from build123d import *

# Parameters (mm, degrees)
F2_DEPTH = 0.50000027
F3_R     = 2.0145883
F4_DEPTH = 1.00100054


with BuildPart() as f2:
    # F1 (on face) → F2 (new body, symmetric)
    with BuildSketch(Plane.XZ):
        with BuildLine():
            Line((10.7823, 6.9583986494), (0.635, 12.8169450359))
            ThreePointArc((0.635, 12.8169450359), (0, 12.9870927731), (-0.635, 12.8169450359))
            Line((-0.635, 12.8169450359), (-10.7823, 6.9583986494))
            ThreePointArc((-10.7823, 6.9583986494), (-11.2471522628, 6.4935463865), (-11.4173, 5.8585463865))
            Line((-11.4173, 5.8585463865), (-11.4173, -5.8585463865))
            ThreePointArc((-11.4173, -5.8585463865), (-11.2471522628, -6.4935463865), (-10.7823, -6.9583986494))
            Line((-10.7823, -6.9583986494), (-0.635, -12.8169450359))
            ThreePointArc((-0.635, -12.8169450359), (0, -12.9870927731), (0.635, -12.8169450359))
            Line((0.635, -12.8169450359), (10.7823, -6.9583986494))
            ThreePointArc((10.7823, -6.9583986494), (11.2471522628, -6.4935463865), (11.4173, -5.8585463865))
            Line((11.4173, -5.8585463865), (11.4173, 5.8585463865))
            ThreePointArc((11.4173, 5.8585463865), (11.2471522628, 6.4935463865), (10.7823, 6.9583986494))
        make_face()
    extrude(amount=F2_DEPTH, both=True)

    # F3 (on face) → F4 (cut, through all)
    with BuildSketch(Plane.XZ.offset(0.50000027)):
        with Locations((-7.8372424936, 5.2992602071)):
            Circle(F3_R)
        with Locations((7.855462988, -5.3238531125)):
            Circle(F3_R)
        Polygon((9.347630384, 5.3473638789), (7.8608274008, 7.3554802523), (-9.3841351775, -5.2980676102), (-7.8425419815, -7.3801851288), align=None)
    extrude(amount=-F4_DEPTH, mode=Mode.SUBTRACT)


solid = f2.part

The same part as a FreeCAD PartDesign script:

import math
import FreeCAD as App
import Part
import Sketcher
Q = App.Units.Quantity

doc = App.newDocument("Part")
body = doc.addObject("PartDesign::Body", "Body")

# Sketch on XZ plane
sketch1 = body.newObject("Sketcher::SketchObject", "Sketch")
sketch1.AttachmentSupport = (doc.getObject("XZ_Plane"), [""])
sketch1.MapMode = "FlatFace"
sketch1.addGeometry(Part.LineSegment(App.Vector(10.8, 7, 0), App.Vector(0.6, 12.8, 0)), False)
sketch1.addGeometry(Part.ArcOfCircle(Part.Circle(App.Vector(0, 11.7, 0), App.Vector(0, 0, 1), 1.3), math.radians(60), math.radians(120)), False)
sketch1.addGeometry(Part.LineSegment(App.Vector(-0.6, 12.8, 0), App.Vector(-10.8, 7, 0)), False)
sketch1.addGeometry(Part.ArcOfCircle(Part.Circle(App.Vector(-10.1, 5.9, 0), App.Vector(0, 0, 1), 1.3), math.radians(120), math.radians(180)), False)
sketch1.addGeometry(Part.LineSegment(App.Vector(-11.4, 5.9, 0), App.Vector(-11.4, -5.9, 0)), False)
sketch1.addGeometry(Part.ArcOfCircle(Part.Circle(App.Vector(-10.1, -5.9, 0), App.Vector(0, 0, 1), 1.3), math.radians(180), math.radians(240)), False)
sketch1.addGeometry(Part.LineSegment(App.Vector(-10.8, -7, 0), App.Vector(-0.6, -12.8, 0)), False)
sketch1.addGeometry(Part.ArcOfCircle(Part.Circle(App.Vector(0, -11.7, 0), App.Vector(0, 0, 1), 1.3), math.radians(-120), math.radians(-60)), False)
sketch1.addGeometry(Part.LineSegment(App.Vector(0.6, -12.8, 0), App.Vector(10.8, -7, 0)), False)
sketch1.addGeometry(Part.ArcOfCircle(Part.Circle(App.Vector(10.1, -5.9, 0), App.Vector(0, 0, 1), 1.3), math.radians(-60), math.radians(0)), False)
sketch1.addGeometry(Part.LineSegment(App.Vector(11.4, -5.9, 0), App.Vector(11.4, 5.9, 0)), False)
sketch1.addGeometry(Part.ArcOfCircle(Part.Circle(App.Vector(10.1, 5.9, 0), App.Vector(0, 0, 1), 1.3), math.radians(0), math.radians(60)), False)
sketch1.addConstraint(Sketcher.Constraint("Tangent", 0, 2, 1, 1))
sketch1.addConstraint(Sketcher.Constraint("Tangent", 1, 2, 2, 1))
sketch1.addConstraint(Sketcher.Constraint("Tangent", 2, 2, 3, 1))
sketch1.addConstraint(Sketcher.Constraint("Tangent", 3, 2, 4, 1))
sketch1.addConstraint(Sketcher.Constraint("Tangent", 4, 2, 5, 1))
sketch1.addConstraint(Sketcher.Constraint("Tangent", 5, 2, 6, 1))
sketch1.addConstraint(Sketcher.Constraint("Tangent", 6, 2, 7, 1))
sketch1.addConstraint(Sketcher.Constraint("Tangent", 7, 2, 8, 1))
sketch1.addConstraint(Sketcher.Constraint("Tangent", 8, 2, 9, 1))
sketch1.addConstraint(Sketcher.Constraint("Tangent", 9, 2, 10, 1))
sketch1.addConstraint(Sketcher.Constraint("Tangent", 10, 2, 11, 1))
sketch1.addConstraint(Sketcher.Constraint("Tangent", 11, 2, 0, 1))
sketch1.addConstraint(Sketcher.Constraint("Vertical", 4))
sketch1.addConstraint(Sketcher.Constraint("Vertical", 10))
sketch1.addConstraint(Sketcher.Constraint("Equal", 1, 3))
sketch1.addConstraint(Sketcher.Constraint("Equal", 3, 5))
sketch1.addConstraint(Sketcher.Constraint("Equal", 5, 7))
sketch1.addConstraint(Sketcher.Constraint("Equal", 7, 9))
sketch1.addConstraint(Sketcher.Constraint("Equal", 9, 11))
sketch1.addConstraint(Sketcher.Constraint("Symmetric", 1, 3, 7, 3, -1, 1))
sketch1.addConstraint(Sketcher.Constraint("Symmetric", 3, 3, 9, 3, -1, 1))
sketch1.addConstraint(Sketcher.Constraint("Symmetric", 0, 2, 1, 2, -2))
sketch1.addConstraint(Sketcher.Constraint("Parallel", 0, 6))
sketch1.addConstraint(Sketcher.Constraint("Angle", 0, Q("150 deg")))
sketch1.addConstraint(Sketcher.Constraint("Radius", 1, 1.27))
sketch1.addConstraint(Sketcher.Constraint("DistanceX", 3, 3, -1, 1, 10.1473))
sketch1.addConstraint(Sketcher.Constraint("DistanceY", -1, 1, 2, 2, 6.958399))
pad1 = body.newObject("PartDesign::Pad", "Pad")
pad1.Profile = sketch1
pad1.Length = 1.000001
pad1.Midplane = True

# Sketch on XZ plane
sketch2 = body.newObject("Sketcher::SketchObject", "Sketch001")
sketch2.AttachmentSupport = (doc.getObject("XZ_Plane"), [""])
sketch2.MapMode = "FlatFace"
sketch2.AttachmentOffset = App.Placement(App.Vector(0, 0, 0.5), App.Rotation())
sketch2.addGeometry(Part.Circle(App.Vector(-7.8, 5.3, 0), App.Vector(0, 0, 1), 2), False)
sketch2.addGeometry(Part.Circle(App.Vector(7.9, -5.3, 0), App.Vector(0, 0, 1), 2), False)
sketch2.addGeometry(Part.LineSegment(App.Vector(9.3, 5.3, 0), App.Vector(7.9, 7.4, 0)), False)
sketch2.addGeometry(Part.LineSegment(App.Vector(7.9, 7.4, 0), App.Vector(-9.4, -5.3, 0)), False)
sketch2.addGeometry(Part.LineSegment(App.Vector(-9.4, -5.3, 0), App.Vector(-7.8, -7.4, 0)), False)
sketch2.addGeometry(Part.LineSegment(App.Vector(-7.8, -7.4, 0), App.Vector(9.3, 5.3, 0)), False)
sketch2.addConstraint(Sketcher.Constraint("Coincident", 2, 2, 3, 1))
sketch2.addConstraint(Sketcher.Constraint("Coincident", 3, 2, 4, 1))
sketch2.addConstraint(Sketcher.Constraint("Coincident", 4, 2, 5, 1))
sketch2.addConstraint(Sketcher.Constraint("Coincident", 5, 2, 2, 1))
sketch2.addConstraint(Sketcher.Constraint("Equal", 0, 1))
sketch2.addConstraint(Sketcher.Constraint("Parallel", 2, 4))
sketch2.addConstraint(Sketcher.Constraint("Perpendicular", 4, 5))
sketch2.addConstraint(Sketcher.Constraint("Diameter", 0, 4.029177))
sketch2.addConstraint(Sketcher.Constraint("Distance", 4, 2.590699))
sketch2.addConstraint(Sketcher.Constraint("DistanceX", 3, 2, 1, 3, 17.239598))
sketch2.addConstraint(Sketcher.Constraint("DistanceX", 4, 2, 0, 3, 0.005299))
sketch2.addConstraint(Sketcher.Constraint("DistanceY", -1, 1, 0, 3, 5.29926))
sketch2.addConstraint(Sketcher.Constraint("DistanceY", -1, 1, 2, 2, 7.35548))
sketch2.addConstraint(Sketcher.Constraint("DistanceX", 4, 2, -1, 1, 7.842542))
sketch2.addConstraint(Sketcher.Constraint("DistanceX", -1, 1, 5, 2, 9.34763))
sketch2.addConstraint(Sketcher.Constraint("DistanceX", 0, 3, 2, 2, 15.69807))
sketch2.addConstraint(Sketcher.Constraint("DistanceY", 4, 2, 5, 2, 12.727549))
sketch2.addConstraint(Sketcher.Constraint("DistanceY", 1, 3, -1, 1, 5.323853))
pocket1 = body.newObject("PartDesign::Pocket", "Pocket")
pocket1.Profile = sketch2
pocket1.Type = "ThroughAll"

doc.recompute()
